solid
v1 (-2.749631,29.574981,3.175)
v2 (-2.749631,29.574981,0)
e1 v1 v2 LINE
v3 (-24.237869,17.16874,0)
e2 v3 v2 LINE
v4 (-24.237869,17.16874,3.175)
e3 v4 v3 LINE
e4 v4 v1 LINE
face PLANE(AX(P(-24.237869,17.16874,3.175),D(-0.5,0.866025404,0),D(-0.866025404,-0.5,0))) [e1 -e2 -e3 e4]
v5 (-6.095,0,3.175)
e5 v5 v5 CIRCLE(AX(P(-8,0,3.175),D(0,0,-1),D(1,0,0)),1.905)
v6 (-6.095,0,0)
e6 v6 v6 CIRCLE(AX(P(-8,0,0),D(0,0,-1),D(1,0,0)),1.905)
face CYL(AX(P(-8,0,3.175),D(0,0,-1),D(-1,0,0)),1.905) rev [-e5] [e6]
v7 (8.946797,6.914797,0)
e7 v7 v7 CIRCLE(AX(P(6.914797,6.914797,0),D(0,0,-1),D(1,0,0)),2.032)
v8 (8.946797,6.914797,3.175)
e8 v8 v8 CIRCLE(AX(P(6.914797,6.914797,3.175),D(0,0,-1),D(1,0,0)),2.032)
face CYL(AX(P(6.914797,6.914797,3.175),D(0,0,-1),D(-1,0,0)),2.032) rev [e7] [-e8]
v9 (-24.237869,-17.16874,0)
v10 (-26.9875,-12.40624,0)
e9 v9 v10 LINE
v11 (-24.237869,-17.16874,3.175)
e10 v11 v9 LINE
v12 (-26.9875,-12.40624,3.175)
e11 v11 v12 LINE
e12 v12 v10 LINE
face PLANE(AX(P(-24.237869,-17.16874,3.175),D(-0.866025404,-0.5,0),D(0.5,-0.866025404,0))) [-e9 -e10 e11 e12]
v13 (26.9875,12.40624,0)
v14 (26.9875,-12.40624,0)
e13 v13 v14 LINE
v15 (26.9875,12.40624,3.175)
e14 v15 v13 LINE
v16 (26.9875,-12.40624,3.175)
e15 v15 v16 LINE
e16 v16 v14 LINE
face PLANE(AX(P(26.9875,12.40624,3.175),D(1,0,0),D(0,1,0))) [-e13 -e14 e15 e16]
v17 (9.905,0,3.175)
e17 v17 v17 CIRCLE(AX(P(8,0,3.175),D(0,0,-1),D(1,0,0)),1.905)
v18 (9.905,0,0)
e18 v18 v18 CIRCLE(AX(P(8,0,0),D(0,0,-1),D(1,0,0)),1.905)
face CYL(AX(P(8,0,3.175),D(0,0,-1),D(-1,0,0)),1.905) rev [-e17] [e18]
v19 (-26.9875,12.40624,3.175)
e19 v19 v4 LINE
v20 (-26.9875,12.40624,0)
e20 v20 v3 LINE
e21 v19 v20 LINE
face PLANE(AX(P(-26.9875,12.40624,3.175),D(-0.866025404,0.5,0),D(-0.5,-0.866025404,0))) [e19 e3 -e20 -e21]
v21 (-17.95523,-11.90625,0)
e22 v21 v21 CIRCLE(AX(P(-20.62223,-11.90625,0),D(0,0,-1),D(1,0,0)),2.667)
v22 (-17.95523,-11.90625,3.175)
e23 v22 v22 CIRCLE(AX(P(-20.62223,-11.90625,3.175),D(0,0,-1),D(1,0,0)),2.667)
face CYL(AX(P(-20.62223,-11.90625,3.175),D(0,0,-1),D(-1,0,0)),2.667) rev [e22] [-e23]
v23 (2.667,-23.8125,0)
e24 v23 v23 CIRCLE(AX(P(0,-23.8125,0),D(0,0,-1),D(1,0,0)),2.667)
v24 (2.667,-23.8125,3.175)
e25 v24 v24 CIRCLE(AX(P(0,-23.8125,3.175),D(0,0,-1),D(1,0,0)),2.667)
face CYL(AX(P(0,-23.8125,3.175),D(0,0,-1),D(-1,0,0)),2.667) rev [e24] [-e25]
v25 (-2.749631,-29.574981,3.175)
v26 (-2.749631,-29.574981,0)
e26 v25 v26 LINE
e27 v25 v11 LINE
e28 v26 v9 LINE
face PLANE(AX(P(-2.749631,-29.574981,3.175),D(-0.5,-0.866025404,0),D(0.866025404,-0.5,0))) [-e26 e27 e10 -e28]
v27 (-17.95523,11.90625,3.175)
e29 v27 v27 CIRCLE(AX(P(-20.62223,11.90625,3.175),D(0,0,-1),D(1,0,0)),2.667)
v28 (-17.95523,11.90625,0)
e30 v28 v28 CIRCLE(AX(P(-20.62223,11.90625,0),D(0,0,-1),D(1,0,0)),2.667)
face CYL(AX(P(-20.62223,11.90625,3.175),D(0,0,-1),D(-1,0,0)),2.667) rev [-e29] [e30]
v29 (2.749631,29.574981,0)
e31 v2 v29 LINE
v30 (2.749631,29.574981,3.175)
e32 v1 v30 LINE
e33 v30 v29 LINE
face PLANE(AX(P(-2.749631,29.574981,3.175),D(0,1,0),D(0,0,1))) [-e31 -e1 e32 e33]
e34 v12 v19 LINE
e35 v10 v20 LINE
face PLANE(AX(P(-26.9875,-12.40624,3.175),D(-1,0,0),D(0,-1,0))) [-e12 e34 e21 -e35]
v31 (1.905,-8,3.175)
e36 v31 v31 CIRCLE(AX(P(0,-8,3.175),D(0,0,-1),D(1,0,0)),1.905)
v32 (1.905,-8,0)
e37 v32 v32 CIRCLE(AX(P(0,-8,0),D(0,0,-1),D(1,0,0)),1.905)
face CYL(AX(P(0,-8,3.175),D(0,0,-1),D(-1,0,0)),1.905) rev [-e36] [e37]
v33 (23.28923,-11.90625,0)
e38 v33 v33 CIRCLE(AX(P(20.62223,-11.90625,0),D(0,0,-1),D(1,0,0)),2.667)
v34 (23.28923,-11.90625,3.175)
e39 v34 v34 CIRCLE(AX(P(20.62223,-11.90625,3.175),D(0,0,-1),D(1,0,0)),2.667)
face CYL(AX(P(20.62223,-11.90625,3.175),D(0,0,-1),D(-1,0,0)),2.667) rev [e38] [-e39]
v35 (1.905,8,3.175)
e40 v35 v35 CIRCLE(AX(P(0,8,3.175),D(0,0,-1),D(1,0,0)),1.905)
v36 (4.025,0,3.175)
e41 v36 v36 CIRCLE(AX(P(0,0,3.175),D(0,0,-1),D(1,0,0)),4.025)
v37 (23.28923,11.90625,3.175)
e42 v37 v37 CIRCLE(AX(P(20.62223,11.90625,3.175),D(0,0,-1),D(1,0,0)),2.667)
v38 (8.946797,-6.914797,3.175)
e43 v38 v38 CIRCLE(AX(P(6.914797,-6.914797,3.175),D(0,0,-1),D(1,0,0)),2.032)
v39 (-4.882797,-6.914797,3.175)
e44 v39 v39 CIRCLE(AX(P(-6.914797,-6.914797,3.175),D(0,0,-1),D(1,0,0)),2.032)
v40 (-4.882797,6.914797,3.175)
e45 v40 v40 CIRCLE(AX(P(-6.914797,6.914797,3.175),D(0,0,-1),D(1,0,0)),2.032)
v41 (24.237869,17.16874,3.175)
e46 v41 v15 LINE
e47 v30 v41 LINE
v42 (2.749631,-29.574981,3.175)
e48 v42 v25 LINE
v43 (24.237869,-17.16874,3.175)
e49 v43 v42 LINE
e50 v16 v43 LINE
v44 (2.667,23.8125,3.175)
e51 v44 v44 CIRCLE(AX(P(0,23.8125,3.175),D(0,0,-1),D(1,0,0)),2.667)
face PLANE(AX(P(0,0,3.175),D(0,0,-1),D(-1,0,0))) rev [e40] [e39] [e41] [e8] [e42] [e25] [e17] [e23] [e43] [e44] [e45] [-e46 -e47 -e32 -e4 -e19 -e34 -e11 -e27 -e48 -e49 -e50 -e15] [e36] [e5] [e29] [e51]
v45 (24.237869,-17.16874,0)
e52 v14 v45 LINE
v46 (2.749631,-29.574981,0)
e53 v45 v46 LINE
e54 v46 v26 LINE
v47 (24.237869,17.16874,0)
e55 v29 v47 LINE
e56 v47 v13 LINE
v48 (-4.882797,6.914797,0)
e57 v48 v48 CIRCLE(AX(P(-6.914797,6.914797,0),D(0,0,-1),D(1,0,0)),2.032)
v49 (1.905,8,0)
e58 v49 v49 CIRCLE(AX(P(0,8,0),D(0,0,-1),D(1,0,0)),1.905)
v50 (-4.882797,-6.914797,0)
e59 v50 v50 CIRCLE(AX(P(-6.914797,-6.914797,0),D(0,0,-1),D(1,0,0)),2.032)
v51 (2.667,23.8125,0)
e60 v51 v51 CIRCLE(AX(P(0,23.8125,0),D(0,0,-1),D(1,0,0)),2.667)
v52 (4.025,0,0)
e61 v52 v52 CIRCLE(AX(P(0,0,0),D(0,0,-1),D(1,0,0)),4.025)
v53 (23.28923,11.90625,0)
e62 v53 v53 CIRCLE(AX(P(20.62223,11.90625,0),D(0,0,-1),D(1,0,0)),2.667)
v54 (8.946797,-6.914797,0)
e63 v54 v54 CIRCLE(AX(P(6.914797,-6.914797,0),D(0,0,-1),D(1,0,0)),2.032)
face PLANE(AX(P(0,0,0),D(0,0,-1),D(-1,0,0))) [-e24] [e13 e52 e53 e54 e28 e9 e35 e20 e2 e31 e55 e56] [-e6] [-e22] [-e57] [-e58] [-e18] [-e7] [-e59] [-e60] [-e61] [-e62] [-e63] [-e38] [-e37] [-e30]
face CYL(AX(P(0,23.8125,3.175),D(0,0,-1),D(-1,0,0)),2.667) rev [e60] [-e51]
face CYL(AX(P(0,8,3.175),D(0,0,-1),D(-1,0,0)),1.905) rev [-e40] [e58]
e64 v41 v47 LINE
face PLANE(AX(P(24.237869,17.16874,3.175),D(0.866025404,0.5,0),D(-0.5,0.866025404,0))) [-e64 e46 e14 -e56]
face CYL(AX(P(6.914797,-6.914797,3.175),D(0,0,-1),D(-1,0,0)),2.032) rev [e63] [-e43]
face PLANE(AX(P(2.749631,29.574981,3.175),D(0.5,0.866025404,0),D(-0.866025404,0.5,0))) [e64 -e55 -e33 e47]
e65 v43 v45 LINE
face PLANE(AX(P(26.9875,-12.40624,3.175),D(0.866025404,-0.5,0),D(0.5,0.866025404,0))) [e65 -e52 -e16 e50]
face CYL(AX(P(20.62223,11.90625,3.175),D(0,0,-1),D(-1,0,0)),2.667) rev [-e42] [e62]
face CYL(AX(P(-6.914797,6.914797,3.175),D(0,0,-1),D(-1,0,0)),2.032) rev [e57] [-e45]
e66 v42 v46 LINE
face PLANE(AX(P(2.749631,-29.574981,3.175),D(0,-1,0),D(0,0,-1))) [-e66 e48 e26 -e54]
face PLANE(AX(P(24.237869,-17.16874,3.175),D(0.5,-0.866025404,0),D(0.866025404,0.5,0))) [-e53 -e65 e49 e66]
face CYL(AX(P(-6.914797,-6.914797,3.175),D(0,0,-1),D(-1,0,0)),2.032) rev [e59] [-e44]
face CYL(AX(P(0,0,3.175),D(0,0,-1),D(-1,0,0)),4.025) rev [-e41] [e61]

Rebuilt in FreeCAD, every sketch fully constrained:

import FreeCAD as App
import Part
import Sketcher
Q = App.Units.Quantity

doc = App.newDocument("Part")
params = doc.addObject("Spreadsheet::Sheet", "Params")
for row, (alias, value) in enumerate([
    ("sketch1_diameter", "0.21 in"),
    ("sketch1_diameter2", "0.16 in"),
    ("sketch1_diameter3", "0.15 in"),
    ("pad1_length", "0.125 in"),
], start=1):
    params.set(f"A{row}", alias)
    params.set(f"B{row}", "=" + value)
    params.setAlias(f"B{row}", alias)

body = doc.addObject("PartDesign::Body", "Body")

sketch1 = body.newObject("Sketcher::SketchObject", "Sketch")
sketch1.AttachmentSupport = (doc.getObject("XY_Plane"), [""])
sketch1.MapMode = "FlatFace"
sketch1.addGeometry([
    Part.LineSegment(App.Vector(-2.7, 29.6, 0), App.Vector(2.7, 29.6, 0)),
    Part.LineSegment(App.Vector(2.7, 29.6, 0), App.Vector(24.2, 17.2, 0)),
    Part.LineSegment(App.Vector(24.2, 17.2, 0), App.Vector(27, 12.4, 0)),
    Part.LineSegment(App.Vector(27, 12.4, 0), App.Vector(27, -12.4, 0)),
    Part.LineSegment(App.Vector(27, -12.4, 0), App.Vector(24.2, -17.2, 0)),
    Part.LineSegment(App.Vector(24.2, -17.2, 0), App.Vector(2.7, -29.6, 0)),
    Part.LineSegment(App.Vector(2.7, -29.6, 0), App.Vector(-2.7, -29.6, 0)),
    Part.LineSegment(App.Vector(-2.7, -29.6, 0), App.Vector(-24.2, -17.2, 0)),
    Part.LineSegment(App.Vector(-24.2, -17.2, 0), App.Vector(-27, -12.4, 0)),
    Part.LineSegment(App.Vector(-27, -12.4, 0), App.Vector(-27, 12.4, 0)),
    Part.LineSegment(App.Vector(-27, 12.4, 0), App.Vector(-24.2, 17.2, 0)),
    Part.LineSegment(App.Vector(-24.2, 17.2, 0), App.Vector(-2.7, 29.6, 0)),
    Part.Circle(App.Vector(20.6, -11.9, 0), App.Vector(0, 0, 1), 2.7),
    Part.Circle(App.Vector(6.9, -6.9, 0), App.Vector(0, 0, 1), 2),
    Part.Circle(App.Vector(0, -23.8, 0), App.Vector(0, 0, 1), 2.7),
    Part.Circle(App.Vector(0, -8, 0), App.Vector(0, 0, 1), 1.9),
    Part.Circle(App.Vector(-6.9, -6.9, 0), App.Vector(0, 0, 1), 2),
    Part.Circle(App.Vector(-20.6, -11.9, 0), App.Vector(0, 0, 1), 2.7),
    Part.Circle(App.Vector(20.6, 11.9, 0), App.Vector(0, 0, 1), 2.7),
    Part.Circle(App.Vector(8, 0, 0), App.Vector(0, 0, 1), 1.9),
    Part.Circle(App.Vector(6.9, 6.9, 0), App.Vector(0, 0, 1), 2),
    Part.Circle(App.Vector(0, 0, 0), App.Vector(0, 0, 1), 4),
    Part.Circle(App.Vector(-8, 0, 0), App.Vector(0, 0, 1), 1.9),
    Part.Circle(App.Vector(0, 8, 0), App.Vector(0, 0, 1), 1.9),
    Part.Circle(App.Vector(-6.9, 6.9, 0), App.Vector(0, 0, 1), 2),
    Part.Circle(App.Vector(-20.6, 11.9, 0), App.Vector(0, 0, 1), 2.7),
    Part.Circle(App.Vector(0, 23.8, 0), App.Vector(0, 0, 1), 2.7),
], False)
sketch1.addConstraint([
    Sketcher.Constraint("Coincident", 0, 2, 1, 1),
    Sketcher.Constraint("Coincident", 1, 2, 2, 1),
    Sketcher.Constraint("Coincident", 2, 2, 3, 1),
    Sketcher.Constraint("Coincident", 3, 2, 4, 1),
    Sketcher.Constraint("Coincident", 4, 2, 5, 1),
    Sketcher.Constraint("Coincident", 5, 2, 6, 1),
    Sketcher.Constraint("Coincident", 6, 2, 7, 1),
    Sketcher.Constraint("Coincident", 7, 2, 8, 1),
    Sketcher.Constraint("Coincident", 8, 2, 9, 1),
    Sketcher.Constraint("Coincident", 9, 2, 10, 1),
    Sketcher.Constraint("Coincident", 10, 2, 11, 1),
    Sketcher.Constraint("Coincident", 11, 2, 0, 1),
    Sketcher.Constraint("Horizontal", 0),
    Sketcher.Constraint("Vertical", 3),
    Sketcher.Constraint("Horizontal", 6),
    Sketcher.Constraint("Vertical", 9),
    Sketcher.Constraint("Coincident", 21, 3, -1, 1),
    Sketcher.Constraint("Equal", 12, 14),
    Sketcher.Constraint("Equal", 13, 16),
    Sketcher.Constraint("Equal", 14, 17),
    Sketcher.Constraint("Equal", 17, 18),
    Sketcher.Constraint("Equal", 15, 19),
    Sketcher.Constraint("Equal", 16, 20),
    Sketcher.Constraint("Equal", 19, 22),
    Sketcher.Constraint("Equal", 22, 23),
    Sketcher.Constraint("Equal", 20, 24),
    Sketcher.Constraint("Equal", 18, 25),
    Sketcher.Constraint("Equal", 25, 26),
    Sketcher.Constraint("Symmetric", 17, 3, 18, 3, -1, 1),
    Sketcher.Constraint("Symmetric", 16, 3, 20, 3, -1, 1),
    Sketcher.Constraint("Symmetric", 19, 3, 22, 3, -1, 1),
    Sketcher.Constraint("Symmetric", 15, 3, 23, 3, -1, 1),
    Sketcher.Constraint("Symmetric", 13, 3, 24, 3, -1, 1),
    Sketcher.Constraint("Symmetric", 12, 3, 25, 3, -1, 1),
    Sketcher.Constraint("Symmetric", 14, 3, 26, 3, -1, 1),
    Sketcher.Constraint("Symmetric", 0, 2, 6, 2, -1, 1),
    Sketcher.Constraint("Symmetric", 1, 2, 7, 2, -1, 1),
    Sketcher.Constraint("Symmetric", 2, 2, 8, 2, -1, 1),
    Sketcher.Constraint("Symmetric", 4, 2, 10, 2, -1, 1),
    Sketcher.Constraint("Symmetric", 13, 3, 16, 3, -2),
    Sketcher.Constraint("Symmetric", 12, 3, 17, 3, -2),
    Sketcher.Constraint("Symmetric", 4, 2, 7, 2, -2),
    Sketcher.Constraint("PointOnObject", 14, 3, -2),
    Sketcher.Constraint("PointOnObject", 15, 3, -2),
    Sketcher.Constraint("PointOnObject", 19, 3, -1),
    Sketcher.Constraint("Perpendicular", 1, 4),
    Sketcher.Constraint("Perpendicular", 2, 5),
    Sketcher.Constraint("Perpendicular", 7, 10),
    Sketcher.Constraint("Perpendicular", 8, 11),
    Sketcher.Constraint("Horizontal", 3, 2, 8, 2),
    Sketcher.Constraint("Diameter", 12, Q("0.21 in")),
    Sketcher.Constraint("Diameter", 13, Q("0.16 in")),
    Sketcher.Constraint("Diameter", 15, Q("0.15 in")),
    Sketcher.Constraint("Angle", 1, Q("-30 deg")),
    Sketcher.Constraint("Diameter", 21, 8.05),
    Sketcher.Constraint("DistanceY", 12, 3, -1, 1, Q("0.46875 in")),
    Sketcher.Constraint("DistanceY", 14, 3, -1, 1, Q("0.9375 in")),
    Sketcher.Constraint("DistanceX", -1, 1, 2, 2, Q("1.0625 in")),
    Sketcher.Constraint("DistanceY", 2, 2, 1, 2, Q("0.1875 in")),
    Sketcher.Constraint("DistanceX", 0, 1, 0, 2, 5.499261),
    Sketcher.Constraint("DistanceY", 3, 2, 3, 1, 24.812481),
    Sketcher.Constraint("DistanceY", 15, 3, -1, 1, 8.0),
    Sketcher.Constraint("DistanceX", -1, 1, 19, 3, 8.0),
    Sketcher.Constraint("DistanceX", 0, 2, 18, 3, 17.872599),
    Sketcher.Constraint("DistanceX", -1, 1, 13, 3, 6.914797),
    Sketcher.Constraint("DistanceY", 13, 3, -1, 1, 6.914797),
])
sketch1.setExpression("Constraints[50]", "Params.sketch1_diameter")
sketch1.setExpression("Constraints[51]", "Params.sketch1_diameter2")
sketch1.setExpression("Constraints[52]", "Params.sketch1_diameter3")
pad1 = body.newObject("PartDesign::Pad", "Pad")
pad1.Profile = sketch1
pad1.setExpression("Length", "Params.pad1_length")

doc.recompute()
